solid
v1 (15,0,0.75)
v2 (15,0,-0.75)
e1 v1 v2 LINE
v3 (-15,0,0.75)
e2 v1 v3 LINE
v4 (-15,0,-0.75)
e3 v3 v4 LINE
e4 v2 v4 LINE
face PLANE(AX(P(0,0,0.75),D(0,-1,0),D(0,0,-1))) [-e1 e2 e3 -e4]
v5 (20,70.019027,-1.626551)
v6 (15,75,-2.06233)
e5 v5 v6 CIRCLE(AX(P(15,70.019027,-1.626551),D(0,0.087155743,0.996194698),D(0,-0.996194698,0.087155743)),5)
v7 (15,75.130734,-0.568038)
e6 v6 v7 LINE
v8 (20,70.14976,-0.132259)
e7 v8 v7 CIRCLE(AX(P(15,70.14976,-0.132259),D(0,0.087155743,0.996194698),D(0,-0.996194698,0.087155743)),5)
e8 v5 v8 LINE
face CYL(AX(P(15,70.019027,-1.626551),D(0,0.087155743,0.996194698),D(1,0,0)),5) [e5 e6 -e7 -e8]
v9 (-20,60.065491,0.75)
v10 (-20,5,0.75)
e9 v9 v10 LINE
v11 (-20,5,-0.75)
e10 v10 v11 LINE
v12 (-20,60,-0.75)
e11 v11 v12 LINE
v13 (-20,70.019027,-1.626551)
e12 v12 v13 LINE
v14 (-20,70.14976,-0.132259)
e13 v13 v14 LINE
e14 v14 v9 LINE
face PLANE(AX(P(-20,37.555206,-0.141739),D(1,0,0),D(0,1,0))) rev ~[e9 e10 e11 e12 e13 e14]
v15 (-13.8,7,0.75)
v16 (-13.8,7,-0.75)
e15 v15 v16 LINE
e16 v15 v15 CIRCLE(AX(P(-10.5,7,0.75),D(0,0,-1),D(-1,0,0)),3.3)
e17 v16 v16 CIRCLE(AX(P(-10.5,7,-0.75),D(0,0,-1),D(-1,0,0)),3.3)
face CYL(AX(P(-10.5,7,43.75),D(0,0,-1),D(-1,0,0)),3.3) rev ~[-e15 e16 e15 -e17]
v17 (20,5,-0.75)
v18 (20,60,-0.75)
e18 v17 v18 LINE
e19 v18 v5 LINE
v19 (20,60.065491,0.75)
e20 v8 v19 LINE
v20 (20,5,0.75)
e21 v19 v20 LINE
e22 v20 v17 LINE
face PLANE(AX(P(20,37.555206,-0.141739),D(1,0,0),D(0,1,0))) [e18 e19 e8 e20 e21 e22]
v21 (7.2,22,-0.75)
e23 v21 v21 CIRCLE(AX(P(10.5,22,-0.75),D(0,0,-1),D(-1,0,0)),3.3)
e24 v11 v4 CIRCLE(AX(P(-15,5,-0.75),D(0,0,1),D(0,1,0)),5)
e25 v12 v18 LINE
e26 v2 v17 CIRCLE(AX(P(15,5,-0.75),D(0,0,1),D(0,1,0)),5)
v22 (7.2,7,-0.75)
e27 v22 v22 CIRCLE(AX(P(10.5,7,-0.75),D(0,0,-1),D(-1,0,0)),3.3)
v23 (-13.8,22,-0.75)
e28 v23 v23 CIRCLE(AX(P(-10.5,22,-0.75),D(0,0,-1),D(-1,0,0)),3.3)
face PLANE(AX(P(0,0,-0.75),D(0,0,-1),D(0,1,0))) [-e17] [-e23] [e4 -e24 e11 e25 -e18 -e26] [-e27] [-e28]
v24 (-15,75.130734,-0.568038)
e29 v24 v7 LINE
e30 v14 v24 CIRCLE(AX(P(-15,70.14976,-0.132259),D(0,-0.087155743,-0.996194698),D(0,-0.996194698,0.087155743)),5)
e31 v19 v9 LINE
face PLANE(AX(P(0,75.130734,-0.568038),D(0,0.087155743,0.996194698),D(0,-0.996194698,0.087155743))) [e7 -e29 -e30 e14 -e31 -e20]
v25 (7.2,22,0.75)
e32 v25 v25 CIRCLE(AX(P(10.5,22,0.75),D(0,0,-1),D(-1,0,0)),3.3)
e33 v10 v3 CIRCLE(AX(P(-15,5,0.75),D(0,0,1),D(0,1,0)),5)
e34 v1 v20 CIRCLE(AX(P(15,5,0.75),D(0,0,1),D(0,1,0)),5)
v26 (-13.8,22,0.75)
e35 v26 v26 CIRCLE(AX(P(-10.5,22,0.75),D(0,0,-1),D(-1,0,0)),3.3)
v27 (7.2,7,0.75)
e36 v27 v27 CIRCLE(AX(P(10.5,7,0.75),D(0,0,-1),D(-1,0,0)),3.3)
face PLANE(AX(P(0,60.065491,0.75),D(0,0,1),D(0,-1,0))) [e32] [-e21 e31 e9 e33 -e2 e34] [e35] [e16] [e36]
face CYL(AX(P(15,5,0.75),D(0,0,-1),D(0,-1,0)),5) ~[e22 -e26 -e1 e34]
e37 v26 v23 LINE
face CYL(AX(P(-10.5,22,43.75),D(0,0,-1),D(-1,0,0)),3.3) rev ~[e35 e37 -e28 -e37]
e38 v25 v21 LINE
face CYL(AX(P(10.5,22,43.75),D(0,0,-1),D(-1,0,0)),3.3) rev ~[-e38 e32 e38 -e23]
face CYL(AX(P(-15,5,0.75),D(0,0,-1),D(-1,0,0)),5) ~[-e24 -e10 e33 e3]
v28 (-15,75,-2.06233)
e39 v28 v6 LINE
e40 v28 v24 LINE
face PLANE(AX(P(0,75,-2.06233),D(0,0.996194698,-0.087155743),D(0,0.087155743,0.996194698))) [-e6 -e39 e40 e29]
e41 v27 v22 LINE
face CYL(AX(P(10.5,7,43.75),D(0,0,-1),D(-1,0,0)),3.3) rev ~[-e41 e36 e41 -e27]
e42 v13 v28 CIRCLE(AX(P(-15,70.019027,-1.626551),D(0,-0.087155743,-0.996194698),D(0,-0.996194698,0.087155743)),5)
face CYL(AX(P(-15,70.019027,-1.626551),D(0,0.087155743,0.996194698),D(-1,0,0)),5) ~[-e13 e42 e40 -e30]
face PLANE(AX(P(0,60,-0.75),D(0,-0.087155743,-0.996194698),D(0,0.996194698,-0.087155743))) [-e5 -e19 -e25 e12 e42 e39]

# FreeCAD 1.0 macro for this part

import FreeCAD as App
import Part
import Sketcher
Q = App.Units.Quantity


def edges_at(feature, points):
    """Names of the edges that pass closest to the given points."""
    edges = feature.Shape.Edges
    near = lambda p: min(range(len(edges)), key=lambda i: edges[i].distToShape(Part.Vertex(*p))[0])
    return sorted({f"Edge{near(p) + 1}" for p in points})

doc = App.newDocument("Part")
body = doc.addObject("PartDesign::Body", "Body")

sketch1 = body.newObject("Sketcher::SketchObject", "Sketch")
sketch1.AttachmentSupport = (doc.getObject("YZ_Plane"), [""])
sketch1.MapMode = "FlatFace"
sketch1.addGeometry(Part.LineSegment(App.Vector(0, -0.75, 0), App.Vector(60, -0.75, 0)), False)
sketch1.addGeometry(Part.LineSegment(App.Vector(60, -0.75, 0), App.Vector(75, -2.06233, 0)), False)
sketch1.addGeometry(Part.LineSegment(App.Vector(75, -2.06233, 0), App.Vector(75.130734, -0.568038, 0)), False)
sketch1.addGeometry(Part.LineSegment(App.Vector(75.130734, -0.568038, 0), App.Vector(60.065491, 0.75, 0)), False)
sketch1.addGeometry(Part.LineSegment(App.Vector(60.065491, 0.75, 0), App.Vector(0, 0.75, 0)), False)
sketch1.addGeometry(Part.LineSegment(App.Vector(0, 0.75, 0), App.Vector(0, -0.75, 0)), False)
sketch1.addConstraint(Sketcher.Constraint("Coincident", 0, 2, 1, 1))
sketch1.addConstraint(Sketcher.Constraint("Coincident", 1, 2, 2, 1))
sketch1.addConstraint(Sketcher.Constraint("Coincident", 2, 2, 3, 1))
sketch1.addConstraint(Sketcher.Constraint("Coincident", 3, 2, 4, 1))
sketch1.addConstraint(Sketcher.Constraint("Coincident", 4, 2, 5, 1))
sketch1.addConstraint(Sketcher.Constraint("Coincident", 5, 2, 0, 1))
sketch1.addConstraint(Sketcher.Constraint("Horizontal", 0))
sketch1.addConstraint(Sketcher.Constraint("Horizontal", 4))
sketch1.addConstraint(Sketcher.Constraint("Vertical", 5))
sketch1.addConstraint(Sketcher.Constraint("Symmetric", 4, 2, 5, 2, -1, 1))
sketch1.addConstraint(Sketcher.Constraint("Perpendicular", 1, 2))
sketch1.addConstraint(Sketcher.Constraint("Perpendicular", 2, 3))
sketch1.addConstraint(Sketcher.Constraint("DistanceX", 0, 1, 0, 2, 60.0))
sketch1.addConstraint(Sketcher.Constraint("Angle", 1, Q("-5 deg")))
sketch1.addConstraint(Sketcher.Constraint("DistanceY", 5, 2, 5, 1, 1.5))
sketch1.addConstraint(Sketcher.Constraint("DistanceX", -1, 1, 1, 2, 75.0))
sketch1.addConstraint(Sketcher.Constraint("Distance", 2, 1.5))
pad1 = body.newObject("PartDesign::Pad", "Pad")
pad1.Profile = sketch1
pad1.Length = 40
pad1.Midplane = True

sketch2 = body.newObject("Sketcher::SketchObject", "Sketch001")
sketch2.AttachmentSupport = (doc.getObject("XY_Plane"), [""])
sketch2.MapMode = "FlatFace"
sketch2.AttachmentOffset = App.Placement(App.Vector(0, 0, 0.75), App.Rotation())
sketch2.addGeometry(Part.Circle(App.Vector(-10.5, 7, 0), App.Vector(0, 0, 1), 3.3), False)
sketch2.addGeometry(Part.Circle(App.Vector(10.5, 7, 0), App.Vector(0, 0, 1), 3.3), False)
sketch2.addGeometry(Part.Circle(App.Vector(10.5, 22, 0), App.Vector(0, 0, 1), 3.3), False)
sketch2.addGeometry(Part.Circle(App.Vector(-10.5, 22, 0), App.Vector(0, 0, 1), 3.3), False)
sketch2.addConstraint(Sketcher.Constraint("Equal", 0, 1))
sketch2.addConstraint(Sketcher.Constraint("Equal", 1, 2))
sketch2.addConstraint(Sketcher.Constraint("Equal", 2, 3))
sketch2.addConstraint(Sketcher.Constraint("Symmetric", 0, 3, 1, 3, -2))
sketch2.addConstraint(Sketcher.Constraint("Symmetric", 2, 3, 3, 3, -2))
sketch2.addConstraint(Sketcher.Constraint("Vertical", 1, 3, 2, 3))
sketch2.addConstraint(Sketcher.Constraint("Diameter", 0, 6.6))
sketch2.addConstraint(Sketcher.Constraint("DistanceY", -1, 1, 0, 3, 7.0))
sketch2.addConstraint(Sketcher.Constraint("DistanceY", -1, 1, 2, 3, 22.0))
sketch2.addConstraint(Sketcher.Constraint("DistanceX", 0, 3, 1, 3, 21.0))
doc.recompute()
hole = body.newObject("PartDesign::Hole", "Hole")
hole.Profile = sketch2
hole.ThreadType = "None"
hole.Diameter = 6.6
hole.DepthType = "Dimension"
hole.Depth = 43
hole.DrillPoint = "Angled"
hole.DrillPointAngle = 118
doc.recompute()

fillet = body.newObject("PartDesign::Fillet", "Fillet")
fillet.Base = (hole, edges_at(hole, [
    (20, 75.065, -1.315),
    (-20, 75.065, -1.315),
    (20, 0, 0),
    (-20, 0, 0),
]))
fillet.Radius = 5

doc.recompute()
